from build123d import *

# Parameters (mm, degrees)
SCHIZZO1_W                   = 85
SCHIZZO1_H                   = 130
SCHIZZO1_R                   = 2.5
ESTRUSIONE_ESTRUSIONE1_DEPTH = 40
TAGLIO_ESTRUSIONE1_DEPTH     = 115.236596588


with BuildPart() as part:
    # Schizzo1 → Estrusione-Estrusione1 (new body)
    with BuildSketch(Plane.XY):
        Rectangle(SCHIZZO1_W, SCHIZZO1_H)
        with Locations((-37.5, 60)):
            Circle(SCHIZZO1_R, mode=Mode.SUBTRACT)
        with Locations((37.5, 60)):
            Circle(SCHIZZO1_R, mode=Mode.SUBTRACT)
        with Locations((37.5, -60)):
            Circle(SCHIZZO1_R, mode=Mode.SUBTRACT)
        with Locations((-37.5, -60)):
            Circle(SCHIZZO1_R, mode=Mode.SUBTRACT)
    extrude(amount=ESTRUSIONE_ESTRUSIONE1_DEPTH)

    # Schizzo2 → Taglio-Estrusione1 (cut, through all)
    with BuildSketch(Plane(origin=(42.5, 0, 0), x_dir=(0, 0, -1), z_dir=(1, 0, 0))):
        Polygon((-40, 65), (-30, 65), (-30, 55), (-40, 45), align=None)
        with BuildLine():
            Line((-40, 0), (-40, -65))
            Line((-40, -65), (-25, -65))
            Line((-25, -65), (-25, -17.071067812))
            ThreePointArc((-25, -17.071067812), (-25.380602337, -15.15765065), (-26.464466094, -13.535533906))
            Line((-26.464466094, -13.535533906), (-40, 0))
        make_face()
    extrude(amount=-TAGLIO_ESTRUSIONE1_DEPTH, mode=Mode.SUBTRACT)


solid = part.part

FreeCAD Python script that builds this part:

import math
import FreeCAD as App
import Part
import Sketcher


def add_polygon(sketch, points):
    """Adds a closed chain of lines whose ends are joined by coincident constraints."""
    first, n = sketch.GeometryCount, len(points)
    for a, b in zip(points, points[1:] + points[:1]):
        sketch.addGeometry(Part.LineSegment(App.Vector(*a, 0), App.Vector(*b, 0)), False)
    for i in range(n):
        sketch.addConstraint(Sketcher.Constraint("Coincident", first + i, 2, first + (i + 1) % n, 1))

doc = App.newDocument("Part")
params = doc.addObject("Spreadsheet::Sheet", "Params")
for row, (alias, value) in enumerate([
    ("sketch1_diameter", "5 mm"),
    ("sketch1_width", "85 mm"),
    ("sketch1_height", "130 mm"),
    ("pad1_length", "40 mm"),
    ("sketch2_radius", "5 mm"),
    ("sketch2_width", "20 mm"),
    ("sketch2_width2", "10 mm"),
    ("sketch2_width3", "65 mm"),
], start=1):
    params.set(f"A{row}", alias)
    params.set(f"B{row}", "=" + value)
    params.setAlias(f"B{row}", alias)

body = doc.addObject("PartDesign::Body", "Body")

sketch1 = body.newObject("Sketcher::SketchObject", "Sketch")
sketch1.AttachmentSupport = (doc.getObject("XY_Plane"), [""])
sketch1.MapMode = "FlatFace"
add_polygon(sketch1, [(-42.5, 65), (-42.5, -65), (42.5, -65), (42.5, 65)])
sketch1.addGeometry(Part.Circle(App.Vector(-37.5, -60, 0), App.Vector(0, 0, 1), 2.5), False)
sketch1.addGeometry(Part.Circle(App.Vector(37.5, -60, 0), App.Vector(0, 0, 1), 2.5), False)
sketch1.addGeometry(Part.Circle(App.Vector(-37.5, 60, 0), App.Vector(0, 0, 1), 2.5), False)
sketch1.addGeometry(Part.Circle(App.Vector(37.5, 60, 0), App.Vector(0, 0, 1), 2.5), False)
sketch1.addConstraint(Sketcher.Constraint("Vertical", 0))
sketch1.addConstraint(Sketcher.Constraint("Horizontal", 1))
sketch1.addConstraint(Sketcher.Constraint("Vertical", 2))
sketch1.addConstraint(Sketcher.Constraint("Horizontal", 3))
sketch1.addConstraint(Sketcher.Constraint("Equal", 4, 5))
sketch1.addConstraint(Sketcher.Constraint("Equal", 5, 6))
sketch1.addConstraint(Sketcher.Constraint("Equal", 6, 7))
sketch1.addConstraint(Sketcher.Constraint("Symmetric", 5, 3, 6, 3, -1, 1))
sketch1.addConstraint(Sketcher.Constraint("Symmetric", 4, 3, 7, 3, -1, 1))
sketch1.addConstraint(Sketcher.Constraint("Symmetric", 0, 2, 2, 2, -1, 1))
sketch1.addConstraint(Sketcher.Constraint("Symmetric", 4, 3, 5, 3, -2))
sketch1.addConstraint(Sketcher.Constraint("Diameter", 4, 5.0))
sketch1.addConstraint(Sketcher.Constraint("DistanceX", 1, 1, 1, 2, 85.0))
sketch1.addConstraint(Sketcher.Constraint("DistanceY", 0, 2, 0, 1, 130.0))
sketch1.addConstraint(Sketcher.Constraint("DistanceY", 4, 3, -1, 1, 60.0))
sketch1.addConstraint(Sketcher.Constraint("DistanceX", 4, 3, 5, 3, 75.0))
sketch1.setExpression("Constraints[15]", "Params.sketch1_diameter")
sketch1.setExpression("Constraints[16]", "Params.sketch1_width")
sketch1.setExpression("Constraints[17]", "Params.sketch1_height")
pad1 = body.newObject("PartDesign::Pad", "Pad")
pad1.Profile = sketch1
pad1.setExpression("Length", "Params.pad1_length")

sketch2 = body.newObject("Sketcher::SketchObject", "Sketch001")
sketch2.AttachmentSupport = (doc.getObject("YZ_Plane"), [""])
sketch2.MapMode = "FlatFace"
sketch2.AttachmentOffset = App.Placement(App.Vector(0, 0, 42.5), App.Rotation())
add_polygon(sketch2, [(65, 30), (65, 40), (45, 40), (55, 30)])
sketch2.addGeometry(Part.LineSegment(App.Vector(0, 40, 0), App.Vector(-65, 40, 0)), False)
sketch2.addGeometry(Part.LineSegment(App.Vector(-65, 40, 0), App.Vector(-65, 25, 0)), False)
sketch2.addGeometry(Part.LineSegment(App.Vector(-65, 25, 0), App.Vector(-17.1, 25, 0)), False)
sketch2.addGeometry(Part.ArcOfCircle(Part.Circle(App.Vector(-17.1, 30, 0), App.Vector(0, 0, 1), 5), math.radians(-90), math.radians(-45)), False)
sketch2.addGeometry(Part.LineSegment(App.Vector(-13.5, 26.5, 0), App.Vector(0, 40, 0)), False)
sketch2.addConstraint(Sketcher.Constraint("Coincident", 4, 2, 5, 1))
sketch2.addConstraint(Sketcher.Constraint("Coincident", 5, 2, 6, 1))
sketch2.addConstraint(Sketcher.Constraint("Tangent", 6, 2, 7, 1))
sketch2.addConstraint(Sketcher.Constraint("Tangent", 7, 2, 8, 1))
sketch2.addConstraint(Sketcher.Constraint("Coincident", 8, 2, 4, 1))
sketch2.addConstraint(Sketcher.Constraint("Vertical", 0))
sketch2.addConstraint(Sketcher.Constraint("Horizontal", 1))
sketch2.addConstraint(Sketcher.Constraint("Horizontal", 3))
sketch2.addConstraint(Sketcher.Constraint("Horizontal", 4))
sketch2.addConstraint(Sketcher.Constraint("Vertical", 5))
sketch2.addConstraint(Sketcher.Constraint("Horizontal", 6))
sketch2.addConstraint(Sketcher.Constraint("Symmetric", 0, 2, 4, 2, -2))
sketch2.addConstraint(Sketcher.Constraint("PointOnObject", 8, 2, -2))
sketch2.addConstraint(Sketcher.Constraint("Perpendicular", 2, 8))
sketch2.addConstraint(Sketcher.Constraint("Horizontal", 7, 3, 2, 2))
sketch2.addConstraint(Sketcher.Constraint("Equal", 3, 0))
sketch2.addConstraint(Sketcher.Constraint("Radius", 7, 5.0))
sketch2.addConstraint(Sketcher.Constraint("DistanceX", 1, 2, 1, 1, 20.0))
sketch2.addConstraint(Sketcher.Constraint("DistanceX", 3, 1, 3, 2, 10.0))
sketch2.addConstraint(Sketcher.Constraint("DistanceX", 4, 2, 4, 1, 65.0))
sketch2.addConstraint(Sketcher.Constraint("DistanceY", -1, 1, 7, 3, 30.0))
sketch2.setExpression("Constraints[20]", "Params.sketch2_radius")
sketch2.setExpression("Constraints[21]", "Params.sketch2_width")
sketch2.setExpression("Constraints[22]", "Params.sketch2_width2")
sketch2.setExpression("Constraints[23]", "Params.sketch2_width3")
pocket1 = body.newObject("PartDesign::Pocket", "Pocket")
pocket1.Profile = sketch2
pocket1.Type = "ThroughAll"

doc.recompute()
